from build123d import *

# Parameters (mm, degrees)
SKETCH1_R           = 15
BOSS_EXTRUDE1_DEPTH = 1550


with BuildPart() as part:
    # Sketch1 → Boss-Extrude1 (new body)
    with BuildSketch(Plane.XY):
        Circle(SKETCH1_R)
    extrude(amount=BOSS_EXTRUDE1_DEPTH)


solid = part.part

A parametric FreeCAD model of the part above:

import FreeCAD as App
import Part
import Sketcher

doc = App.newDocument("Part")
params = doc.addObject("Spreadsheet::Sheet", "Params")
for row, (alias, value) in enumerate([
    ("sketch1_diameter", "30 mm"),
    ("pad1_length", "1550 mm"),
], start=1):
    params.set(f"A{row}", alias)
    params.set(f"B{row}", "=" + value)
    params.setAlias(f"B{row}", alias)

body = doc.addObject("PartDesign::Body", "Body")

# Sketch on XY plane
sketch1 = doc.addObject("Sketcher::SketchObject", "Sketch")
body.addObject(sketch1)
sketch1.AttachmentSupport = (doc.XY_Plane, [""])
sketch1.MapMode = "FlatFace"
sketch1.addGeometry(Part.Circle(App.Vector(0, 0, 0), App.Vector(0, 0, 1), 15), False)
sketch1.addConstraint(Sketcher.Constraint("Coincident", 0, 3, -1, 1))
sketch1.addConstraint(Sketcher.Constraint("Diameter", 0, 30.0))
sketch1.setExpression("Constraints[1]", "Params.sketch1_diameter")
pad1 = doc.addObject("PartDesign::Pad", "Pad")
body.addObject(pad1)
pad1.Profile = sketch1
pad1.setExpression("Length", "Params.pad1_length")

doc.recompute()
